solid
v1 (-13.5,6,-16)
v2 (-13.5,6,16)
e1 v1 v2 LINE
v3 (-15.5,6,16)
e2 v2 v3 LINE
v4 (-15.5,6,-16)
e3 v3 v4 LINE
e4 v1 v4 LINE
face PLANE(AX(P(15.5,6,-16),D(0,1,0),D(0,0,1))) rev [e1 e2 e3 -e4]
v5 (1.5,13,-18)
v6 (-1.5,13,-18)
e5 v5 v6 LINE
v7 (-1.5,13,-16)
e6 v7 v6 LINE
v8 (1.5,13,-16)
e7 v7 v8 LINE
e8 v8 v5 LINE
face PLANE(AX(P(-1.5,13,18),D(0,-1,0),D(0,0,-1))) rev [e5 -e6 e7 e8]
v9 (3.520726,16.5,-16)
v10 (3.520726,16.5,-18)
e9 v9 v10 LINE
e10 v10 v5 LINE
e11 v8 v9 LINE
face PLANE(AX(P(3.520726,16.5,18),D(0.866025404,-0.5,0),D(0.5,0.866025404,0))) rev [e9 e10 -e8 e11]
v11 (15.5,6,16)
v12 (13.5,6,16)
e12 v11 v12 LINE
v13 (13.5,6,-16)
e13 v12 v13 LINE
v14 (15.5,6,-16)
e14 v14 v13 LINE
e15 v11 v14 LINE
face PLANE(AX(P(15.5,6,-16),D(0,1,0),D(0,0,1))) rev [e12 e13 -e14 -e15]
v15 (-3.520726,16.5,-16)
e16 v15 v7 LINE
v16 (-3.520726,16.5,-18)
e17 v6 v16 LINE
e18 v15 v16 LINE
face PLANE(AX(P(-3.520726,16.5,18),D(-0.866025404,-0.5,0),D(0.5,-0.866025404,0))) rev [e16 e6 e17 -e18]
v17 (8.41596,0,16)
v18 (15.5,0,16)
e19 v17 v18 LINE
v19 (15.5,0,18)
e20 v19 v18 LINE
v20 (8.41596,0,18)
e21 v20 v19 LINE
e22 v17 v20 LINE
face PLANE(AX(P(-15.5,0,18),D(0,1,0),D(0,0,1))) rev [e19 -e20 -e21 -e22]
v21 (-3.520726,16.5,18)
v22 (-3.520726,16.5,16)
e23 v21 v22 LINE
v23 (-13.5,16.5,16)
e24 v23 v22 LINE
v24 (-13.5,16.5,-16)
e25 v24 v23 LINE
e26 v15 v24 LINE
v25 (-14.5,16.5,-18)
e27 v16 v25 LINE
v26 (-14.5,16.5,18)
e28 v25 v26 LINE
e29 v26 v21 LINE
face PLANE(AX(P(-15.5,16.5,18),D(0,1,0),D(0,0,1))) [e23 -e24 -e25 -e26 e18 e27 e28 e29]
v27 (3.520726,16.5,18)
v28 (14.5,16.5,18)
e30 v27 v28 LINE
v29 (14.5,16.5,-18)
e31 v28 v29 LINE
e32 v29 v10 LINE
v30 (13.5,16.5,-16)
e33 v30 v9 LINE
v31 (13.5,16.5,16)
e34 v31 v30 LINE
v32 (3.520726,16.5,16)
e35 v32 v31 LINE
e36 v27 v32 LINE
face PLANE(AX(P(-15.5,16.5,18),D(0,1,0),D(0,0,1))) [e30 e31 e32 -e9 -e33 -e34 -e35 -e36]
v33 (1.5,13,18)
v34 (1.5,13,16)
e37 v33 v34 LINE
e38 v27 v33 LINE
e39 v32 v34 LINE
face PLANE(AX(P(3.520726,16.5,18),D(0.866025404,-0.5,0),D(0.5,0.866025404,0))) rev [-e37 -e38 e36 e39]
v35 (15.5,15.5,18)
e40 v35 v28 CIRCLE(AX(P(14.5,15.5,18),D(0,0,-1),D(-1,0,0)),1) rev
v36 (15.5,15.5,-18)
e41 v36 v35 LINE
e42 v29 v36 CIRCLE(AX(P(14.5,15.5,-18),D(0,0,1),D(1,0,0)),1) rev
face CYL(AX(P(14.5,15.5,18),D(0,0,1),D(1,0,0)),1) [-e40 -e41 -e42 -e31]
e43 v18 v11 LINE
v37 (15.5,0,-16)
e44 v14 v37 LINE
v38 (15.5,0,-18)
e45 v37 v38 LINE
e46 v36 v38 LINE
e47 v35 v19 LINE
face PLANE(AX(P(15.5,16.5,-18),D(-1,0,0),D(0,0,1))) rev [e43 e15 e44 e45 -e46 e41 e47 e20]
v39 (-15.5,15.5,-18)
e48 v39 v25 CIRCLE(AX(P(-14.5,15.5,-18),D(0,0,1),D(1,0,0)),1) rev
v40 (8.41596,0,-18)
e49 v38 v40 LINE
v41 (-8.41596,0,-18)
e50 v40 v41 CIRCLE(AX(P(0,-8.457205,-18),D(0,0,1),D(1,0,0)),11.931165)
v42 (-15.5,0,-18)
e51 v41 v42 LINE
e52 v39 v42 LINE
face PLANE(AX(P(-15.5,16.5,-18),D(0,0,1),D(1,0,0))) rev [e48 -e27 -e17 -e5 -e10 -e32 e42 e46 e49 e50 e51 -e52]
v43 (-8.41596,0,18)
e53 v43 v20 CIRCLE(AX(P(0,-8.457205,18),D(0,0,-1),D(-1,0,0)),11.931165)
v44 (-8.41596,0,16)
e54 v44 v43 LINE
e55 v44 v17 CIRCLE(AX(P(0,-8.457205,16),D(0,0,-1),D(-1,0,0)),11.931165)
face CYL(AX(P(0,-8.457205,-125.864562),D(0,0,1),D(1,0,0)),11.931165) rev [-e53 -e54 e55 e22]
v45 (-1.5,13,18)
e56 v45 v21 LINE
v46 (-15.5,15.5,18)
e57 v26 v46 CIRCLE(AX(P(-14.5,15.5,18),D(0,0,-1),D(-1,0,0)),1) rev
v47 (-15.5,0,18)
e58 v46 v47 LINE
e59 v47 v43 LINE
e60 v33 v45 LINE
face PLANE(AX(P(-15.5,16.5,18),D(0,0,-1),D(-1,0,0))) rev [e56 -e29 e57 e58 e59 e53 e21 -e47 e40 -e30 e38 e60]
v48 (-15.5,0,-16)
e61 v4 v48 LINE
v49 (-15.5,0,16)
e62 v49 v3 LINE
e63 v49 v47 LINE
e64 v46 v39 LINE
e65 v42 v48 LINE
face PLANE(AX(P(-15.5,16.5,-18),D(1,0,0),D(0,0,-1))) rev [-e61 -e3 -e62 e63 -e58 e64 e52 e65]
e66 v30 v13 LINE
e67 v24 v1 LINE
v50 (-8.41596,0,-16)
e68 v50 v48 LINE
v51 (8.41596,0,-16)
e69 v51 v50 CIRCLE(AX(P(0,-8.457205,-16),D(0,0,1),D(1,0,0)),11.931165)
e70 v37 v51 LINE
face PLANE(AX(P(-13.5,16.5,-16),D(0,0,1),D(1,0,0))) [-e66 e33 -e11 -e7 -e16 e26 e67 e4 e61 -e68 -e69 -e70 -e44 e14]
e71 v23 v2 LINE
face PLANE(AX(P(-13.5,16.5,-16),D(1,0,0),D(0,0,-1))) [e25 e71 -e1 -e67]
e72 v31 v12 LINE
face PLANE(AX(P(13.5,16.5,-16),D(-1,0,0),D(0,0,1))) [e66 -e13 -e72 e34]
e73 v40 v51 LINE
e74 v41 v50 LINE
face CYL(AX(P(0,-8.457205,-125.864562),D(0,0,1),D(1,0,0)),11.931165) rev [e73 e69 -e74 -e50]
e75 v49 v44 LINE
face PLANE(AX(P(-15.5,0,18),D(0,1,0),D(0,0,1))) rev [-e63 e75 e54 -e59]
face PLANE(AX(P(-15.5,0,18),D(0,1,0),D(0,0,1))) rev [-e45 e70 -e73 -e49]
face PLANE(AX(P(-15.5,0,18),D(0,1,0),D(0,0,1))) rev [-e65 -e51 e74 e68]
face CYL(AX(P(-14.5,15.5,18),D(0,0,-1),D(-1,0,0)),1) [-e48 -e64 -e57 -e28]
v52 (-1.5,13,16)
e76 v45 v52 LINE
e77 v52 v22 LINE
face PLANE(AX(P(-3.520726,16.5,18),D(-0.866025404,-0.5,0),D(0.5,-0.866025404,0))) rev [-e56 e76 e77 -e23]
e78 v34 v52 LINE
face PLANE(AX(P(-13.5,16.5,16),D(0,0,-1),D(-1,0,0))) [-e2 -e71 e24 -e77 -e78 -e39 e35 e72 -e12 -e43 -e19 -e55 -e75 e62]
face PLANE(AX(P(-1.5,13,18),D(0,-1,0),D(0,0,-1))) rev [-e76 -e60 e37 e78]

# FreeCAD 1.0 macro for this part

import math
import FreeCAD as App
import Part
import Sketcher
Q = App.Units.Quantity


def edges_at(feature, points):
    """Names of the edges that pass closest to the given points."""
    edges = feature.Shape.Edges
    near = lambda p: min(range(len(edges)), key=lambda i: edges[i].distToShape(Part.Vertex(*p))[0])
    return sorted({f"Edge{near(p) + 1}" for p in points})


def add_polygon(sketch, points):
    """Adds a closed chain of lines whose ends are joined by coincident constraints."""
    first, n = sketch.GeometryCount, len(points)
    for a, b in zip(points, points[1:] + points[:1]):
        sketch.addGeometry(Part.LineSegment(App.Vector(*a, 0), App.Vector(*b, 0)), False)
    for i in range(n):
        sketch.addConstraint(Sketcher.Constraint("Coincident", first + i, 2, first + (i + 1) % n, 1))

doc = App.newDocument("Part")
body = doc.addObject("PartDesign::Body", "Body")

# Sketch on XZ plane
sketch1 = body.newObject("Sketcher::SketchObject", "Sketch")
sketch1.AttachmentSupport = (doc.getObject("XZ_Plane"), [""])
sketch1.MapMode = "FlatFace"
add_polygon(sketch1, [(-16, -18), (-16, 18), (16, 18), (16, -18)])  # lines 0-3
add_polygon(sketch1, [(14, 16), (-14, 16), (-14, -16), (14, -16)])  # lines 4-7
sketch1.addConstraint([
    Sketcher.Constraint("Vertical", 0),
    Sketcher.Constraint("Horizontal", 1),
    Sketcher.Constraint("Vertical", 2),
    Sketcher.Constraint("Horizontal", 3),
    Sketcher.Constraint("Horizontal", 4),
    Sketcher.Constraint("Vertical", 5),
    Sketcher.Constraint("Horizontal", 6),
    Sketcher.Constraint("Vertical", 7),
    Sketcher.Constraint("Symmetric", 0, 2, 2, 2, -1, 1),
    Sketcher.Constraint("Symmetric", 4, 2, 6, 2, -1, 1),
    Sketcher.Constraint("DistanceX", 1, 1, 1, 2, Q("31 mm")),
    Sketcher.Constraint("DistanceX", 4, 2, 4, 1, Q("27 mm")),
    Sketcher.Constraint("DistanceY", 0, 1, 0, 2, Q("36 mm")),
    Sketcher.Constraint("DistanceY", 5, 2, 5, 1, Q("32 mm")),
])
pad1 = body.newObject("PartDesign::Pad", "Pad")
pad1.Profile = sketch1
pad1.Length = 16.5
pad1.Reversed = True

# Sketch on YZ plane
sketch2 = body.newObject("Sketcher::SketchObject", "Sketch001")
sketch2.AttachmentSupport = (doc.getObject("YZ_Plane"), [""])
sketch2.MapMode = "FlatFace"
sketch2.AttachmentOffset = App.Placement(App.Vector(0, 0, -15.5), App.Rotation())
add_polygon(sketch2, [(6, -16), (0, -16), (0, 16), (6, 16)])  # lines 0-3
sketch2.addConstraint([
    Sketcher.Constraint("Horizontal", 0),
    Sketcher.Constraint("Vertical", 1),
    Sketcher.Constraint("Horizontal", 2),
    Sketcher.Constraint("Vertical", 3),
    Sketcher.Constraint("Symmetric", 0, 2, 1, 2, -1, 1),
    Sketcher.Constraint("DistanceX", 0, 2, 0, 1, Q("6 mm")),
    Sketcher.Constraint("DistanceY", 1, 1, 1, 2, Q("32 mm")),
])
pocket1 = body.newObject("PartDesign::Pocket", "Pocket")
pocket1.Profile = sketch2
pocket1.Type = "ThroughAll"
pocket1.Reversed = True

# Sketch on XY plane
sketch3 = body.newObject("Sketcher::SketchObject", "Sketch002")
sketch3.AttachmentSupport = (doc.getObject("XY_Plane"), [""])
sketch3.MapMode = "FlatFace"
sketch3.AttachmentOffset = App.Placement(App.Vector(0, 0, -18), App.Rotation())
add_polygon(sketch3, [(-3.5, 16.5), (3.5, 16.5), (1.5, 13), (-1.5, 13)])  # lines 0-3
sketch3.addConstraint([
    Sketcher.Constraint("Horizontal", 0),
    Sketcher.Constraint("Horizontal", 2),
    Sketcher.Constraint("Equal", 1, 3),
    Sketcher.Constraint("DistanceX", 2, 2, 2, 1, Q("3 mm")),
    Sketcher.Constraint("Angle", 1, Q("-120 deg")),
    Sketcher.Constraint("DistanceY", -1, 1, 1, 2, Q("13 mm")),
    Sketcher.Constraint("DistanceY", -1, 1, 0, 2, Q("16.5 mm")),
    Sketcher.Constraint("DistanceX", -1, 1, 1, 2, Q("1.5 mm")),
])
pocket2 = body.newObject("PartDesign::Pocket", "Pocket001")
pocket2.Profile = sketch3
pocket2.Type = "ThroughAll"
pocket2.Reversed = True
doc.recompute()

fillet = body.newObject("PartDesign::Fillet", "Fillet")
fillet.Base = (pocket2, edges_at(pocket2, [(15.5, 16.5, 0), (-15.5, 16.5, 0)]))
fillet.Radius = 1

# Sketch on XY plane
sketch4 = body.newObject("Sketcher::SketchObject", "Sketch003")
sketch4.AttachmentSupport = (doc.getObject("XY_Plane"), [""])
sketch4.MapMode = "FlatFace"
sketch4.AttachmentOffset = App.Placement(App.Vector(0, 0, -18), App.Rotation())
sketch4.addGeometry([
    Part.LineSegment(App.Vector(8, 0, 0), App.Vector(57, -48, 0)),  # 0
    Part.LineSegment(App.Vector(57, -48, 0), App.Vector(57, -184, 0)),  # 1
    Part.LineSegment(App.Vector(57, -184, 0), App.Vector(-57, -184, 0)),  # 2
    Part.LineSegment(App.Vector(-57, -184, 0), App.Vector(-57, -48, 0)),  # 3
    Part.LineSegment(App.Vector(-57, -48, 0), App.Vector(-8, 0, 0)),  # 4
    Part.ArcOfCircle(Part.Circle(App.Vector(0, -8, 0), App.Vector(0, 0, 1), 12), math.radians(45), math.radians(135)),  # 5
], False)
sketch4.addConstraint([
    Sketcher.Constraint("Coincident", 0, 2, 1, 1),
    Sketcher.Constraint("Coincident", 1, 2, 2, 1),
    Sketcher.Constraint("Coincident", 2, 2, 3, 1),
    Sketcher.Constraint("Coincident", 3, 2, 4, 1),
    Sketcher.Constraint("Tangent", 4, 2, 5, 2),
    Sketcher.Constraint("Tangent", 5, 1, 0, 1),
    Sketcher.Constraint("Vertical", 1),
    Sketcher.Constraint("Horizontal", 2),
    Sketcher.Constraint("Vertical", 3),
    Sketcher.Constraint("Symmetric", 4, 2, 5, 1, -1, 1),
    Sketcher.Constraint("Symmetric", 0, 2, 3, 2, -2),
    Sketcher.Constraint("Radius", 5, Q("11.931165 mm")),
    Sketcher.Constraint("DistanceY", 0, 2, 5, 3, Q("39.586701 mm")),
    Sketcher.Constraint("DistanceX", 2, 2, 2, 1, Q("113.390636 mm")),
    Sketcher.Constraint("DistanceY", 1, 2, 1, 1, Q("136.222073 mm")),
])
pocket3 = body.newObject("PartDesign::Pocket", "Pocket002")
pocket3.Profile = sketch4
pocket3.Type = "ThroughAll"
pocket3.Midplane = True

doc.recompute()
